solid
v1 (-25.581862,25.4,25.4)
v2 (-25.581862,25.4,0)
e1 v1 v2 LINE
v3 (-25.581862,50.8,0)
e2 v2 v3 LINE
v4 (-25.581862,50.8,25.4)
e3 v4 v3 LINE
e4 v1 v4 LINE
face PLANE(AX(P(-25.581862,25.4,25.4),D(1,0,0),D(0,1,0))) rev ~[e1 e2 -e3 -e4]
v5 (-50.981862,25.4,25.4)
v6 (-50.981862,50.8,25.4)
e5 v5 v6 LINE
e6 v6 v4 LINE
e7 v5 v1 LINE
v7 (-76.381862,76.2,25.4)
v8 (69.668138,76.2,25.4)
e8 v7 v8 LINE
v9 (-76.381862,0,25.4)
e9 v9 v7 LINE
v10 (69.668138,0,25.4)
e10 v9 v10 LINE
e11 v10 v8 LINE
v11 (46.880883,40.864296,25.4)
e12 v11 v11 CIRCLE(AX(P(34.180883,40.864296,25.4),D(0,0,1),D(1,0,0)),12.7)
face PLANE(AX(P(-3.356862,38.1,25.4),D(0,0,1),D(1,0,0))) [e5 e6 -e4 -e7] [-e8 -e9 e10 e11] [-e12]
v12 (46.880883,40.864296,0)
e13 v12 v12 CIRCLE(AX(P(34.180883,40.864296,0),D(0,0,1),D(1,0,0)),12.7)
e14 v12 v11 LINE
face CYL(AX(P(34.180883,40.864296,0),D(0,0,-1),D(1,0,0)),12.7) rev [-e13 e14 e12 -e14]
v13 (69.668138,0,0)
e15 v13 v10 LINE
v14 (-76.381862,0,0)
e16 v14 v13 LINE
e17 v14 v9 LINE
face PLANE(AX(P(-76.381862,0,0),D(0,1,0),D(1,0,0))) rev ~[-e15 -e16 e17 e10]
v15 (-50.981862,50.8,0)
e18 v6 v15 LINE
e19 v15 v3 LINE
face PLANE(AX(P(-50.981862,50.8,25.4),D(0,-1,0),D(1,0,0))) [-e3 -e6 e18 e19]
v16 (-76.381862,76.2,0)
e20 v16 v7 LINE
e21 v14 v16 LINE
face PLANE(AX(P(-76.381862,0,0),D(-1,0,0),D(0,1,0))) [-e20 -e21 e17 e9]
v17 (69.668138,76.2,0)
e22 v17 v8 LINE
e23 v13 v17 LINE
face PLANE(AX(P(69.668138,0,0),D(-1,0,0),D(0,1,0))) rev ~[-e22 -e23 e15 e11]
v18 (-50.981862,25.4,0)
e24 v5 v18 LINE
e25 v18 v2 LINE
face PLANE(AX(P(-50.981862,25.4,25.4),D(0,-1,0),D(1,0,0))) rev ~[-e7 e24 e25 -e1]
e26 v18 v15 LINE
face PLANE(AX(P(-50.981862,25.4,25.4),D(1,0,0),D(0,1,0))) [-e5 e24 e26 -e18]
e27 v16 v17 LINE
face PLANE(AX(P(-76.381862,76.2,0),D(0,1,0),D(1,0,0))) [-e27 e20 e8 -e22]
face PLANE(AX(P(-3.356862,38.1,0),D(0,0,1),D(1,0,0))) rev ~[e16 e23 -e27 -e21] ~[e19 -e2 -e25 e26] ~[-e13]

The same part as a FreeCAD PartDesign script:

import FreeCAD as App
import Part
import Sketcher

V = App.Vector
Q = App.Units.Quantity


def add_polygon(sketch, points):
    """Adds a closed chain of lines whose ends are joined by coincident constraints."""
    first, n = sketch.GeometryCount, len(points)
    for a, b in zip(points, points[1:] + points[:1]):
        sketch.addGeometry(Part.LineSegment(App.Vector(*a, 0), App.Vector(*b, 0)), False)
    for i in range(n):
        sketch.addConstraint(Sketcher.Constraint("Coincident", first + i, 2, first + (i + 1) % n, 1))

doc = App.newDocument("Part")
params = doc.addObject("Spreadsheet::Sheet", "Params")
for row, (alias, value) in enumerate([
    ("sketch1_diameter", "1 in"),
    ("sketch1_height", "3 in"),
    ("sketch1_width", "5.75 in"),
    ("pad1_length", "1 in"),
    ("sketch2_width", "1 in"),
    ("pocket1_length", "1 in"),
], start=1):
    params.set(f"A{row}", alias)
    params.set(f"B{row}", "=" + value)
    params.setAlias(f"B{row}", alias)

body = doc.addObject("PartDesign::Body", "Body")

# Sketch on XY plane
sketch1 = body.newObject("Sketcher::SketchObject", "Sketch")
sketch1.AttachmentSupport = (doc.getObject("XY_Plane"), [""])
sketch1.MapMode = "FlatFace"
add_polygon(sketch1, [(-76, 76), (-76, 0), (70, 0), (70, 76)])  # lines 0-3
sketch1.addGeometry(Part.Circle(V(34, 41, 0), V(0, 0, 1), 13), False)  # 4
sketch1.addConstraint(Sketcher.Constraint("Vertical", 0))
sketch1.addConstraint(Sketcher.Constraint("Horizontal", 1))
sketch1.addConstraint(Sketcher.Constraint("Vertical", 2))
sketch1.addConstraint(Sketcher.Constraint("Horizontal", 3))
sketch1.addConstraint(Sketcher.Constraint("PointOnObject", 0, 2, -1))
sketch1.addConstraint(Sketcher.Constraint("Diameter", 4, Q("1 in")))
sketch1.addConstraint(Sketcher.Constraint("DistanceY", 0, 2, 0, 1, Q("3 in")))
sketch1.addConstraint(Sketcher.Constraint("DistanceX", 1, 1, 1, 2, Q("5.75 in")))
sketch1.addConstraint(Sketcher.Constraint("DistanceX", 0, 2, -1, 1, 76.381862))
sketch1.addConstraint(Sketcher.Constraint("DistanceX", -1, 1, 4, 3, 34.180883))
sketch1.addConstraint(Sketcher.Constraint("DistanceY", -1, 1, 4, 3, 40.864296))
sketch1.setExpression("Constraints[9]", "Params.sketch1_diameter")
sketch1.setExpression("Constraints[10]", "Params.sketch1_height")
sketch1.setExpression("Constraints[11]", "Params.sketch1_width")
pad1 = body.newObject("PartDesign::Pad", "Pad")
pad1.Profile = sketch1
pad1.setExpression("Length", "Params.pad1_length")

# Sketch on XY plane
sketch2 = body.newObject("Sketcher::SketchObject", "Sketch001")
sketch2.AttachmentSupport = (doc.getObject("XY_Plane"), [""])
sketch2.MapMode = "FlatFace"
sketch2.AttachmentOffset = App.Placement(V(0, 0, 1 * 25.4), App.Rotation())
add_polygon(sketch2, [(-51, 51), (-51, 25), (-26, 25), (-26, 51)])  # lines 0-3
sketch2.addConstraint(Sketcher.Constraint("Vertical", 0))
sketch2.addConstraint(Sketcher.Constraint("Horizontal", 1))
sketch2.addConstraint(Sketcher.Constraint("Vertical", 2))
sketch2.addConstraint(Sketcher.Constraint("Horizontal", 3))
sketch2.addConstraint(Sketcher.Constraint("Equal", 3, 0))
sketch2.addConstraint(Sketcher.Constraint("DistanceX", 1, 1, 1, 2, Q("1 in")))
sketch2.addConstraint(Sketcher.Constraint("DistanceY", -1, 1, 0, 2, Q("1 in")))
sketch2.addConstraint(Sketcher.Constraint("DistanceX", 0, 2, -1, 1, 50.981862))
sketch2.setExpression("Constraints[9]", "Params.sketch2_width")
pocket1 = body.newObject("PartDesign::Pocket", "Pocket")
pocket1.Profile = sketch2
pocket1.setExpression("Length", "Params.pocket1_length")

doc.recompute()
